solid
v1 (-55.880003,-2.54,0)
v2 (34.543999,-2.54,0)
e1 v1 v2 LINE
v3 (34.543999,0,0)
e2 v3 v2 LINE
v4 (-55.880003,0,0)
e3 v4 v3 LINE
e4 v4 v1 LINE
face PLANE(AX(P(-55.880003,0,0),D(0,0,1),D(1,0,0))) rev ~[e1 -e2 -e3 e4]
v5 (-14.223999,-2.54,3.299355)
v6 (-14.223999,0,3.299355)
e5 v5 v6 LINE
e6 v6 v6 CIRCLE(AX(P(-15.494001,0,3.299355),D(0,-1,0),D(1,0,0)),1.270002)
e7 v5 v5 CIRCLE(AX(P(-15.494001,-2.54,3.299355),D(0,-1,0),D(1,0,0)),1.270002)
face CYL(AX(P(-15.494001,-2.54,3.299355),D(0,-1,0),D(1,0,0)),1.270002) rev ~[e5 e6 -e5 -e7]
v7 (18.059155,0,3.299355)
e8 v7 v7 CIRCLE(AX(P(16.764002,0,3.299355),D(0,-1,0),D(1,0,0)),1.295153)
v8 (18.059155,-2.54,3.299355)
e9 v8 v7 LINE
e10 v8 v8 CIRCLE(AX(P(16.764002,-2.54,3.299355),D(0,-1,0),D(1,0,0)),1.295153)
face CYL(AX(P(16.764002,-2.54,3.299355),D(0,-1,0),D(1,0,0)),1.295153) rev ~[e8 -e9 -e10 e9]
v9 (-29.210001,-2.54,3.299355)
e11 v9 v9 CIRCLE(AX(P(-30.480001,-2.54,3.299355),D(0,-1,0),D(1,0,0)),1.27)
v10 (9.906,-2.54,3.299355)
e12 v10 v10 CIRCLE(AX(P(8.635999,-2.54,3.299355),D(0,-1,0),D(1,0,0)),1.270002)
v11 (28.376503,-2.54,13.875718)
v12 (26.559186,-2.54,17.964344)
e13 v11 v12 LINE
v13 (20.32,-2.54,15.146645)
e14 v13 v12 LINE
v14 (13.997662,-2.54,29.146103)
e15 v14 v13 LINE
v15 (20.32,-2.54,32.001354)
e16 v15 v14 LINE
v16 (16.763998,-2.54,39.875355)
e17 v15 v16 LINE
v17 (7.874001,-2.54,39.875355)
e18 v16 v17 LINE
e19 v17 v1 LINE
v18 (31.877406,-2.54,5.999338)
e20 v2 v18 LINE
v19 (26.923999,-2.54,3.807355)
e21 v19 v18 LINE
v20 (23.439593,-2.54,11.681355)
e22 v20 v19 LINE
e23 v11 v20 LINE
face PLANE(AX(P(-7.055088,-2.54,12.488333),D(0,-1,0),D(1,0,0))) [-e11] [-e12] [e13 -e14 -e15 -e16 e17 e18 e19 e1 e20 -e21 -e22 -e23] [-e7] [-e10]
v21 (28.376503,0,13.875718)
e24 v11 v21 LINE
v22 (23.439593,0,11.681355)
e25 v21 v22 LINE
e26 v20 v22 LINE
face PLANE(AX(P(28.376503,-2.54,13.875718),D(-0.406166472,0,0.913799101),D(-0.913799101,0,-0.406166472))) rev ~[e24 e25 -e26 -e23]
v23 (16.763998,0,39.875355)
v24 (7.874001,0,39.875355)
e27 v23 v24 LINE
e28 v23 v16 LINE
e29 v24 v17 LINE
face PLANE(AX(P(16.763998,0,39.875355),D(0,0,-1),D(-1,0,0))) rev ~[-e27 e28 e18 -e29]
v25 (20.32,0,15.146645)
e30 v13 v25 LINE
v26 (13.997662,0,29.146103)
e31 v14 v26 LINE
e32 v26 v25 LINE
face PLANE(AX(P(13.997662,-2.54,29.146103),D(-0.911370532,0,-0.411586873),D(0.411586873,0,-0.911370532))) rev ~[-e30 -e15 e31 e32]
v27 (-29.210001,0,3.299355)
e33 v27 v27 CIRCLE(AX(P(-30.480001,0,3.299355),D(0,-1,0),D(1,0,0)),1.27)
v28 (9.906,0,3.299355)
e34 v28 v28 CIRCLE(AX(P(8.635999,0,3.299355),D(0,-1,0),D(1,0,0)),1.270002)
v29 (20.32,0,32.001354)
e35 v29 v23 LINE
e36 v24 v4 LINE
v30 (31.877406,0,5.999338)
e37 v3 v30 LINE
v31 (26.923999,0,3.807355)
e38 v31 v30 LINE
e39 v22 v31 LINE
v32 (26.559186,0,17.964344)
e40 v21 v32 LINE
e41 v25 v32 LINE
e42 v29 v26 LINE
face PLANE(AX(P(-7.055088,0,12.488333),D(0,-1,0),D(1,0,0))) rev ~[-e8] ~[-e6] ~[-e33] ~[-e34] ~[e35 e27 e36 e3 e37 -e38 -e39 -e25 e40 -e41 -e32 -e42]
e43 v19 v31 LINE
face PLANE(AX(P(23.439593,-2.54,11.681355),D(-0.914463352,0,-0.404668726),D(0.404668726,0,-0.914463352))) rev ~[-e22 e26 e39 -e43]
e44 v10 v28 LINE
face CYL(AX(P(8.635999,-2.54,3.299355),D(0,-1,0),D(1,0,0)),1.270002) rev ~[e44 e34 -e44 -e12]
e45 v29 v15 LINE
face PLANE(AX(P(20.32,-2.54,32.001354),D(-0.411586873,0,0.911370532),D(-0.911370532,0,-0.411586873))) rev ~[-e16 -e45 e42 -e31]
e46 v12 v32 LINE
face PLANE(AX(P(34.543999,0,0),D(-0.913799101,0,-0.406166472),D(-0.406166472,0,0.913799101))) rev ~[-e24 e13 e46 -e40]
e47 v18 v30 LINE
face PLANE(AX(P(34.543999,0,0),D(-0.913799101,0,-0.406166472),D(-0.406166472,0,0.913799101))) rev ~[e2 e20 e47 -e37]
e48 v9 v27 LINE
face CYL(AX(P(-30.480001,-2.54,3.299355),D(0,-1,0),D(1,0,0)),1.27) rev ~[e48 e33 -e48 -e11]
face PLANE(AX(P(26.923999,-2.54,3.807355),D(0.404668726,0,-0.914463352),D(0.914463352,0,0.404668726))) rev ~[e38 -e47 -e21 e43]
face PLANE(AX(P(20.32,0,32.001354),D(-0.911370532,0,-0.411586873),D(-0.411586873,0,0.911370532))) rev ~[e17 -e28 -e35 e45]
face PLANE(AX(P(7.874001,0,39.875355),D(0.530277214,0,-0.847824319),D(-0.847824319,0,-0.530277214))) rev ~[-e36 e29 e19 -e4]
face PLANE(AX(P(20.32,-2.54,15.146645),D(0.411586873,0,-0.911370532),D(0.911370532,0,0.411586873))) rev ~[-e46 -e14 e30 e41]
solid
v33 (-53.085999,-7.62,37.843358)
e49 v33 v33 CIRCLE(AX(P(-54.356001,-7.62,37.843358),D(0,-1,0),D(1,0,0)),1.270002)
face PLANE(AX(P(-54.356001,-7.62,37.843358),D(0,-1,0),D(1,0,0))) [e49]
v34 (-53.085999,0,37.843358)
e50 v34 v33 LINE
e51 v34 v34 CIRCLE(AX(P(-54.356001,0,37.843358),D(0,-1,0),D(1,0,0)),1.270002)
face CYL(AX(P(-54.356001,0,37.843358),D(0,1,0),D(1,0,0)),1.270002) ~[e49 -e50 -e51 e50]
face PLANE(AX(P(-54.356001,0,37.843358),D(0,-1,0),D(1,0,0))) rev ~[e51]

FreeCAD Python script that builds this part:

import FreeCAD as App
import Part
import Sketcher
Q = App.Units.Quantity

doc = App.newDocument("Part")
body = doc.addObject("PartDesign::Body", "Body")

# Sketch on XZ plane
sketch1 = body.newObject("Sketcher::SketchObject", "Sketch")
sketch1.AttachmentSupport = (doc.getObject("XZ_Plane"), [""])
sketch1.MapMode = "FlatFace"
sketch1.addGeometry([
    Part.LineSegment(App.Vector(8, 40, 0), App.Vector(-56, 0, 0)),  # 0
    Part.LineSegment(App.Vector(-56, 0, 0), App.Vector(35, 0, 0)),  # 1
    Part.LineSegment(App.Vector(35, 0, 0), App.Vector(20, 32, 0)),  # 2
    Part.LineSegment(App.Vector(20, 32, 0), App.Vector(17, 40, 0)),  # 3
    Part.LineSegment(App.Vector(17, 40, 0), App.Vector(8, 40, 0)),  # 4
], False)
sketch1.addConstraint([
    Sketcher.Constraint("Coincident", 0, 2, 1, 1),
    Sketcher.Constraint("Coincident", 1, 2, 2, 1),
    Sketcher.Constraint("Coincident", 2, 2, 3, 1),
    Sketcher.Constraint("Coincident", 3, 2, 4, 1),
    Sketcher.Constraint("Coincident", 4, 2, 0, 1),
    Sketcher.Constraint("Horizontal", 1),
    Sketcher.Constraint("Horizontal", 4),
    Sketcher.Constraint("PointOnObject", 0, 2, -1),
    Sketcher.Constraint("DistanceX", 0, 2, 2, 2, Q("3.0000001 in")),
    Sketcher.Constraint("DistanceX", 1, 1, 1, 2, Q("3.56 in")),
    Sketcher.Constraint("DistanceX", 4, 2, 4, 1, Q("0.3499999 in")),
    Sketcher.Constraint("DistanceX", 0, 2, -1, 1, Q("2.2000001 in")),
    Sketcher.Constraint("DistanceX", 3, 2, 1, 2, Q("0.7 in")),
    Sketcher.Constraint("DistanceY", 2, 2, 3, 2, Q("0.31 in")),
    Sketcher.Constraint("Distance", 2, Q("35.02012 mm")),
])
pad1 = body.newObject("PartDesign::Pad", "Pad")
pad1.Profile = sketch1
pad1.Length = Q("0.1 in")

# Sketch on XZ plane
sketch2 = body.newObject("Sketcher::SketchObject", "Sketch001")
sketch2.AttachmentSupport = (doc.getObject("XZ_Plane"), [""])
sketch2.MapMode = "FlatFace"
sketch2.AttachmentOffset = App.Placement(App.Vector(0, 0, 0.1 * 25.4), App.Rotation())
sketch2.addGeometry([
    Part.LineSegment(App.Vector(27, 18, 0), App.Vector(20, 32, 0)),
    Part.LineSegment(App.Vector(20, 32, 0), App.Vector(14, 29, 0)),
    Part.LineSegment(App.Vector(14, 29, 0), App.Vector(20, 15, 0)),
    Part.LineSegment(App.Vector(20, 15, 0), App.Vector(27, 18, 0)),
], False)
sketch2.addConstraint([
    Sketcher.Constraint("Coincident", 0, 2, 1, 1),
    Sketcher.Constraint("Coincident", 1, 2, 2, 1),
    Sketcher.Constraint("Coincident", 2, 2, 3, 1),
    Sketcher.Constraint("Coincident", 3, 2, 0, 1),
    Sketcher.Constraint("Perpendicular", 1, 2),
    Sketcher.Constraint("Perpendicular", 2, 3),
    Sketcher.Constraint("Vertical", 0, 2, 2, 2),
    Sketcher.Constraint("DistanceX", -1, 1, 0, 2, Q("0.8 in")),
    Sketcher.Constraint("DistanceY", 2, 2, 3, 2, Q("2.817698 mm")),
    Sketcher.Constraint("Distance", 3, Q("6.845938 mm")),
    Sketcher.Constraint("DistanceX", -1, 1, 1, 2, Q("13.997662 mm")),
    Sketcher.Constraint("DistanceY", -1, 1, 0, 2, Q("32.001354 mm")),
])
pocket1 = body.newObject("PartDesign::Pocket", "Pocket")
pocket1.Profile = sketch2
pocket1.Length = Q("1 in")

# Sketch on XZ plane
sketch3 = body.newObject("Sketcher::SketchObject", "Sketch002")
sketch3.AttachmentSupport = (doc.getObject("XZ_Plane"), [""])
sketch3.MapMode = "FlatFace"
sketch3.AttachmentOffset = App.Placement(App.Vector(0, 0, 0.1 * 25.4), App.Rotation())
sketch3.addGeometry([
    Part.LineSegment(App.Vector(28, 14, 0), App.Vector(23, 12, 0)),
    Part.LineSegment(App.Vector(23, 12, 0), App.Vector(27, 4, 0)),
    Part.LineSegment(App.Vector(27, 4, 0), App.Vector(32, 6, 0)),
    Part.LineSegment(App.Vector(32, 6, 0), App.Vector(28, 14, 0)),
], False)
sketch3.addConstraint([
    Sketcher.Constraint("Coincident", 0, 2, 1, 1),
    Sketcher.Constraint("Coincident", 1, 2, 2, 1),
    Sketcher.Constraint("Coincident", 2, 2, 3, 1),
    Sketcher.Constraint("Coincident", 3, 2, 0, 1),
    Sketcher.Constraint("Perpendicular", 1, 2),
    Sketcher.Constraint("Perpendicular", 0, 3),
    Sketcher.Constraint("DistanceX", -1, 1, 1, 2, Q("1.06 in")),
    Sketcher.Constraint("DistanceY", 1, 2, 0, 2, Q("0.31 in")),
    Sketcher.Constraint("Distance", 0, Q("5.402621 mm")),
    Sketcher.Constraint("DistanceY", -1, 1, 2, 2, Q("5.999338 mm")),
    Sketcher.Constraint("DistanceY", -1, 1, 3, 2, Q("13.875718 mm")),
    Sketcher.Constraint("DistanceX", 0, 2, 3, 2, Q("4.93691 mm")),
])
pocket2 = body.newObject("PartDesign::Pocket", "Pocket001")
pocket2.Profile = sketch3
pocket2.Length = Q("1 in")

# Sketch on XY plane
sketch4 = body.newObject("Sketcher::SketchObject", "Sketch003")
sketch4.AttachmentSupport = (doc.getObject("XY_Plane"), [""])
sketch4.MapMode = "FlatFace"
sketch4.addGeometry([
    Part.Circle(App.Vector(-31.8, -4.1, 0), App.Vector(0, 0, 1), 1.3),
    Part.Circle(App.Vector(-17.5, -4.3, 0), App.Vector(0, 0, 1), 1.3),
    Part.Circle(App.Vector(-4.8, -4.3, 0), App.Vector(0, 0, 1), 1.3),
    Part.Circle(App.Vector(8.9, -4.1, 0), App.Vector(0, 0, 1), 1.3),
], False)
sketch4.addConstraint([
    Sketcher.Constraint("Equal", 0, 1),
    Sketcher.Constraint("Equal", 1, 2),
    Sketcher.Constraint("Equal", 2, 3),
    Sketcher.Constraint("Horizontal", 1, 3, 2, 3),
    Sketcher.Constraint("Horizontal", 0, 3, 3, 3),
    Sketcher.Constraint("DistanceX", 1, 3, 2, 3, Q("0.5 in")),
    Sketcher.Constraint("DistanceX", 0, 3, 3, 3, Q("1.6 in")),
    Sketcher.Constraint("Diameter", 0, Q("2.590302 mm")),
    Sketcher.Constraint("DistanceX", 0, 3, -1, 1, Q("1.25 in")),
    Sketcher.Constraint("DistanceX", 1, 3, -1, 1, Q("0.69 in")),
    Sketcher.Constraint("DistanceY", 1, 3, 0, 3, Q("0.01 in")),
    Sketcher.Constraint("DistanceY", 0, 3, -1, 1, Q("4.061355 mm")),
])
pocket3 = body.newObject("PartDesign::Pocket", "Pocket002")
pocket3.Profile = sketch4
pocket3.Length = Q("0.5 in")
pocket3.Reversed = True

# Sketch on XZ plane
sketch5 = body.newObject("Sketcher::SketchObject", "Sketch004")
sketch5.AttachmentSupport = (doc.getObject("XZ_Plane"), [""])
sketch5.MapMode = "FlatFace"
sketch5.AttachmentOffset = App.Placement(App.Vector(0, 0, 0.1 * 25.4), App.Rotation())
sketch5.addGeometry([
    Part.Circle(App.Vector(-30.5, 3.3, 0), App.Vector(0, 0, 1), 1.3),
    Part.Circle(App.Vector(-15.5, 3.3, 0), App.Vector(0, 0, 1), 1.3),
    Part.Circle(App.Vector(8.6, 3.3, 0), App.Vector(0, 0, 1), 1.3),
    Part.Circle(App.Vector(16.8, 3.3, 0), App.Vector(0, 0, 1), 1.3),
], False)
sketch5.addConstraint([
    Sketcher.Constraint("Equal", 0, 1),
    Sketcher.Constraint("Equal", 1, 2),
    Sketcher.Constraint("Horizontal", 0, 3, 1, 3),
    Sketcher.Constraint("Horizontal", 1, 3, 2, 3),
    Sketcher.Constraint("Horizontal", 2, 3, 3, 3),
    Sketcher.Constraint("Diameter", 0, Q("0.1 in")),
    Sketcher.Constraint("DistanceX", 0, 3, -1, 1, Q("1.2 in")),
    Sketcher.Constraint("DistanceX", 1, 3, -1, 1, Q("0.61 in")),
    Sketcher.Constraint("DistanceX", -1, 1, 2, 3, Q("0.3399999 in")),
    Sketcher.Constraint("DistanceX", -1, 1, 3, 3, Q("0.6600001 in")),
    Sketcher.Constraint("Diameter", 3, Q("2.590305 mm")),
    Sketcher.Constraint("DistanceY", -1, 1, 0, 3, Q("3.299355 mm")),
])
pocket4 = body.newObject("PartDesign::Pocket", "Pocket003")
pocket4.Profile = sketch5
pocket4.Length = Q("0.1 in")
body2 = doc.addObject("PartDesign::Body", "Body001")

# Sketch on XY plane
sketch6 = body2.newObject("Sketcher::SketchObject", "Sketch005")
sketch6.AttachmentSupport = (doc.getObject("XY_Plane001"), [""])
sketch6.MapMode = "FlatFace"
sketch6.addGeometry(Part.Circle(App.Vector(-50.8, -1.3, 0), App.Vector(0, 0, 1), 1.6), False)
sketch6.addConstraint([
    Sketcher.Constraint("DistanceX", 0, 3, -1, 1, Q("2 in")),
    Sketcher.Constraint("DistanceY", 0, 3, -1, 1, Q("0.05 in")),
    Sketcher.Constraint("Diameter", 0, Q("3.256094 mm")),
])
pad2 = body2.newObject("PartDesign::Pad", "Pad001")
pad2.Profile = sketch6
pad2.Length = Q("0.4 in")
pad2.Midplane = True
body3 = doc.addObject("PartDesign::Body", "Body002")

# Sketch on XY plane
sketch7 = body3.newObject("Sketcher::SketchObject", "Sketch006")
sketch7.AttachmentSupport = (doc.getObject("XY_Plane002"), [""])
sketch7.MapMode = "FlatFace"
sketch7.addGeometry(Part.Circle(App.Vector(-36.8, -1.3, 0), App.Vector(0, 0, 1), 1.6), False)
sketch7.addConstraint([
    Sketcher.Constraint("DistanceX", 0, 3, -1, 1, Q("1.45 in")),
    Sketcher.Constraint("DistanceY", 0, 3, -1, 1, Q("0.05 in")),
    Sketcher.Constraint("Diameter", 0, Q("3.211208 mm")),
])
pad3 = body3.newObject("PartDesign::Pad", "Pad002")
pad3.Profile = sketch7
pad3.Length = Q("0.4 in")
pad3.Midplane = True
body4 = doc.addObject("PartDesign::Body", "Body003")

# Sketch on XY plane
sketch8 = body4.newObject("Sketcher::SketchObject", "Sketch007")
sketch8.AttachmentSupport = (doc.getObject("XY_Plane003"), [""])
sketch8.MapMode = "FlatFace"
sketch8.addGeometry(Part.Circle(App.Vector(-21.8, -1.3, 0), App.Vector(0, 0, 1), 1.8), False)
sketch8.addConstraint([
    Sketcher.Constraint("DistanceX", 0, 3, -1, 1, Q("0.8600001 in")),
    Sketcher.Constraint("DistanceY", 0, 3, -1, 1, Q("0.05 in")),
    Sketcher.Constraint("Diameter", 0, Q("3.55601 mm")),
])
pad4 = body4.newObject("PartDesign::Pad", "Pad003")
pad4.Profile = sketch8
pad4.Length = Q("0.4 in")
pad4.Midplane = True
body5 = doc.addObject("PartDesign::Body", "Body004")

# Sketch on XY plane
sketch9 = body5.newObject("Sketcher::SketchObject", "Sketch008")
sketch9.AttachmentSupport = (doc.getObject("XY_Plane004"), [""])
sketch9.MapMode = "FlatFace"
sketch9.addGeometry(Part.Circle(App.Vector(-5.3, -1.3, 0), App.Vector(0, 0, 1), 1.8), False)
sketch9.addConstraint([
    Sketcher.Constraint("DistanceX", 0, 3, -1, 1, Q("0.2099999 in")),
    Sketcher.Constraint("DistanceY", 0, 3, -1, 1, Q("0.05 in")),
    Sketcher.Constraint("Diameter", 0, Q("3.591356 mm")),
])
pad5 = body5.newObject("PartDesign::Pad", "Pad004")
pad5.Profile = sketch9
pad5.Length = Q("0.4 in")
pad5.Midplane = True
body6 = doc.addObject("PartDesign::Body", "Body005")

# Sketch on XY plane
sketch10 = body6.newObject("Sketcher::SketchObject", "Sketch009")
sketch10.AttachmentSupport = (doc.getObject("XY_Plane005"), [""])
sketch10.MapMode = "FlatFace"
sketch10.addGeometry(Part.Circle(App.Vector(9.1, -1.3, 0), App.Vector(0, 0, 1), 1.9), False)
sketch10.addConstraint([
    Sketcher.Constraint("DistanceX", -1, 1, 0, 3, Q("0.3600001 in")),
    Sketcher.Constraint("DistanceY", 0, 3, -1, 1, Q("0.05 in")),
    Sketcher.Constraint("Diameter", 0, Q("3.86673 mm")),
])
pad6 = body6.newObject("PartDesign::Pad", "Pad005")
pad6.Profile = sketch10
pad6.Length = Q("0.4 in")
pad6.Midplane = True
body7 = doc.addObject("PartDesign::Body", "Body006")

# Sketch on XY plane
sketch11 = body7.newObject("Sketcher::SketchObject", "Sketch010")
sketch11.AttachmentSupport = (doc.getObject("XY_Plane006"), [""])
sketch11.MapMode = "FlatFace"
sketch11.addGeometry(Part.Circle(App.Vector(23.1, -1.3, 0), App.Vector(0, 0, 1), 1.8), False)
sketch11.addConstraint([
    Sketcher.Constraint("DistanceX", -1, 1, 0, 3, Q("0.91 in")),
    Sketcher.Constraint("DistanceY", 0, 3, -1, 1, Q("0.05 in")),
    Sketcher.Constraint("Diameter", 0, Q("3.591353 mm")),
])
pad7 = body7.newObject("PartDesign::Pad", "Pad006")
pad7.Profile = sketch11
pad7.Length = Q("0.4 in")
pad7.Midplane = True
body8 = doc.addObject("PartDesign::Body", "Body007")

# Sketch on XZ plane
sketch12 = body8.newObject("Sketcher::SketchObject", "Sketch011")
sketch12.AttachmentSupport = (doc.getObject("XZ_Plane007"), [""])
sketch12.MapMode = "FlatFace"
sketch12.addGeometry(Part.Circle(App.Vector(-54.4, 37.8, 0), App.Vector(0, 0, 1), 1.3), False)
sketch12.addConstraint([
    Sketcher.Constraint("Diameter", 0, Q("0.1000002 in")),
    Sketcher.Constraint("DistanceX", 0, 3, -1, 1, Q("2.1400001 in")),
    Sketcher.Constraint("DistanceY", -1, 1, 0, 3, Q("37.843358 mm")),
])
pad8 = body8.newObject("PartDesign::Pad", "Pad007")
pad8.Profile = sketch12
pad8.Length = Q("0.3 in")
body2.Visibility = False
body3.Visibility = False
body4.Visibility = False
body5.Visibility = False
body6.Visibility = False
body7.Visibility = False

doc.recompute()
